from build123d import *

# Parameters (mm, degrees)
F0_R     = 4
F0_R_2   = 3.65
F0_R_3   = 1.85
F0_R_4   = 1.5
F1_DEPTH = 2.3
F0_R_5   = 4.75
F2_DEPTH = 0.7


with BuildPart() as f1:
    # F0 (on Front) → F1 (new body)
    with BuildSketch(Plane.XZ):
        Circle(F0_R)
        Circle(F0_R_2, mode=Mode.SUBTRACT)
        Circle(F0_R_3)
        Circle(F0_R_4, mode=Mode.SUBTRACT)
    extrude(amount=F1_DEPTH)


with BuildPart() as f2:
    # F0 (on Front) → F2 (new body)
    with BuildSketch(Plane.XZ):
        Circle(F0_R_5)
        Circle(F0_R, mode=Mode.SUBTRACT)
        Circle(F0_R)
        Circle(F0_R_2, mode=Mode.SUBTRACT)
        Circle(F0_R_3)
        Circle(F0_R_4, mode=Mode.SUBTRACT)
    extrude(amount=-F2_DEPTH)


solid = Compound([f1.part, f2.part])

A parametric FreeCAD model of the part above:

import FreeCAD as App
import Part
import Sketcher
from FreeCAD import Vector

doc = App.newDocument("Part")
body = doc.addObject("PartDesign::Body", "Body")
body.AllowCompound = True

sketch1 = body.newObject("Sketcher::SketchObject", "Sketch")
sketch1.AttachmentSupport = (doc.getObject("XZ_Plane"), [""])
sketch1.MapMode = "FlatFace"
sketch1.addGeometry([
    Part.Circle(Vector(0, 0, 0), Vector(0, 0, 1), 4),
    Part.Circle(Vector(0, 0, 0), Vector(0, 0, 1), 3.65),
    Part.Circle(Vector(0, 0, 0), Vector(0, 0, 1), 1.85),
    Part.Circle(Vector(0, 0, 0), Vector(0, 0, 1), 1.5),
], False)
sketch1.addConstraint([
    Sketcher.Constraint("Coincident", 0, 3, -1, 1),
    Sketcher.Constraint("Coincident", 1, 3, -1, 1),
    Sketcher.Constraint("Coincident", 2, 3, -1, 1),
    Sketcher.Constraint("Coincident", 3, 3, -1, 1),
    Sketcher.Constraint("Diameter", 0, 8.0),
    Sketcher.Constraint("Diameter", 3, 3.0),
    Sketcher.Constraint("Diameter", 1, 7.3),
    Sketcher.Constraint("Diameter", 2, 3.7),
])
pad1 = body.newObject("PartDesign::Pad", "Pad")
pad1.Profile = sketch1
pad1.Length = 2.3
body2 = doc.addObject("PartDesign::Body", "Body001")
body2.AllowCompound = True

sketch2 = body2.newObject("Sketcher::SketchObject", "Sketch001")
sketch2.AttachmentSupport = (doc.getObject("XZ_Plane001"), [""])
sketch2.MapMode = "FlatFace"
sketch2.addGeometry([
    Part.Circle(Vector(0, 0, 0), Vector(0, 0, 1), 4.75),
    Part.Circle(Vector(0, 0, 0), Vector(0, 0, 1), 3.65),
    Part.Circle(Vector(0, 0, 0), Vector(0, 0, 1), 1.85),
    Part.Circle(Vector(0, 0, 0), Vector(0, 0, 1), 1.5),
], False)
sketch2.addConstraint([
    Sketcher.Constraint("Coincident", 0, 3, -1, 1),
    Sketcher.Constraint("Coincident", 1, 3, -1, 1),
    Sketcher.Constraint("Coincident", 2, 3, -1, 1),
    Sketcher.Constraint("Coincident", 3, 3, -1, 1),
    Sketcher.Constraint("Diameter", 3, 3.0),
    Sketcher.Constraint("Diameter", 0, 9.5),
    Sketcher.Constraint("Diameter", 1, 7.3),
    Sketcher.Constraint("Diameter", 2, 3.7),
])
pad2 = body2.newObject("PartDesign::Pad", "Pad001")
pad2.Profile = sketch2
pad2.Length = 0.7
pad2.Reversed = True

doc.recompute()
